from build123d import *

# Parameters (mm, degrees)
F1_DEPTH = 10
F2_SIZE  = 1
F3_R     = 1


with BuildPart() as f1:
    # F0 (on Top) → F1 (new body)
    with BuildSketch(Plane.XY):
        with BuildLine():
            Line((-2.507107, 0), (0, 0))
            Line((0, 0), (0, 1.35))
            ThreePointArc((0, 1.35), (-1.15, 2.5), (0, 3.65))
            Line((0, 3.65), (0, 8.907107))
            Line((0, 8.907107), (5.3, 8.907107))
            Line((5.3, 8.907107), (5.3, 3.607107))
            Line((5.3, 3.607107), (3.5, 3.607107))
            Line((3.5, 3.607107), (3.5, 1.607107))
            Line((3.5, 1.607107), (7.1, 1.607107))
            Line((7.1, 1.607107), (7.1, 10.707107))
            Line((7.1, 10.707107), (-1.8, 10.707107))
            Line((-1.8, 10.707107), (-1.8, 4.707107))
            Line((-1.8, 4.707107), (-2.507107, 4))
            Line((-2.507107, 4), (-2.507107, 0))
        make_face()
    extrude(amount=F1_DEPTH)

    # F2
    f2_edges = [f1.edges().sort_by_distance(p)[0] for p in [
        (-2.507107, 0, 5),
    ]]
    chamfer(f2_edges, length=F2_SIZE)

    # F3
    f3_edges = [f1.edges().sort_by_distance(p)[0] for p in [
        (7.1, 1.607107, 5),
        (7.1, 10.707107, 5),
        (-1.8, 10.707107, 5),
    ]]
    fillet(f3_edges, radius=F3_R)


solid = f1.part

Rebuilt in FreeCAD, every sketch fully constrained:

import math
import FreeCAD as App
import Part
import Sketcher

V = App.Vector
Q = App.Units.Quantity


def edges_at(feature, points):
    """Names of the edges that pass closest to the given points."""
    edges = feature.Shape.Edges
    near = lambda p: min(range(len(edges)), key=lambda i: edges[i].distToShape(Part.Vertex(*p))[0])
    return sorted({f"Edge{near(p) + 1}" for p in points})

doc = App.newDocument("Part")
body = doc.addObject("PartDesign::Body", "Body")

sketch1 = doc.addObject("Sketcher::SketchObject", "Sketch")
body.addObject(sketch1)
sketch1.AttachmentSupport = (doc.XY_Plane, [""])
sketch1.MapMode = "FlatFace"
sketch1.addGeometry([
    Part.LineSegment(V(-2.5, 0, 0), V(0, 0, 0)),
    Part.LineSegment(V(0, 0, 0), V(0, 1.4, 0)),
    Part.ArcOfCircle(Part.Circle(V(0, 2.5, 0), V(0, 0, 1), 1.1), math.radians(90), math.radians(270)),
    Part.LineSegment(V(0, 3.6, 0), V(0, 8.9, 0)),
    Part.LineSegment(V(0, 8.9, 0), V(5.3, 8.9, 0)),
    Part.LineSegment(V(5.3, 8.9, 0), V(5.3, 3.6, 0)),
    Part.LineSegment(V(5.3, 3.6, 0), V(3.5, 3.6, 0)),
    Part.LineSegment(V(3.5, 3.6, 0), V(3.5, 1.6, 0)),
    Part.LineSegment(V(3.5, 1.6, 0), V(7.1, 1.6, 0)),
    Part.LineSegment(V(7.1, 1.6, 0), V(7.1, 10.7, 0)),
    Part.LineSegment(V(7.1, 10.7, 0), V(-1.8, 10.7, 0)),
    Part.LineSegment(V(-1.8, 10.7, 0), V(-1.8, 4.7, 0)),
    Part.LineSegment(V(-1.8, 4.7, 0), V(-2.5, 4, 0)),
    Part.LineSegment(V(-2.5, 4, 0), V(-2.5, 0, 0)),
], False)
sketch1.addConstraint([
    Sketcher.Constraint("Coincident", 0, 2, 1, 1),
    Sketcher.Constraint("Coincident", 1, 2, 2, 2),
    Sketcher.Constraint("Coincident", 2, 1, 3, 1),
    Sketcher.Constraint("Coincident", 3, 2, 4, 1),
    Sketcher.Constraint("Coincident", 4, 2, 5, 1),
    Sketcher.Constraint("Coincident", 5, 2, 6, 1),
    Sketcher.Constraint("Coincident", 6, 2, 7, 1),
    Sketcher.Constraint("Coincident", 7, 2, 8, 1),
    Sketcher.Constraint("Coincident", 8, 2, 9, 1),
    Sketcher.Constraint("Coincident", 9, 2, 10, 1),
    Sketcher.Constraint("Coincident", 10, 2, 11, 1),
    Sketcher.Constraint("Coincident", 11, 2, 12, 1),
    Sketcher.Constraint("Coincident", 12, 2, 13, 1),
    Sketcher.Constraint("Coincident", 13, 2, 0, 1),
    Sketcher.Constraint("Horizontal", 0),
    Sketcher.Constraint("Vertical", 1),
    Sketcher.Constraint("Vertical", 3),
    Sketcher.Constraint("Horizontal", 4),
    Sketcher.Constraint("Vertical", 5),
    Sketcher.Constraint("Horizontal", 6),
    Sketcher.Constraint("Vertical", 7),
    Sketcher.Constraint("Horizontal", 8),
    Sketcher.Constraint("Vertical", 9),
    Sketcher.Constraint("Horizontal", 10),
    Sketcher.Constraint("Vertical", 11),
    Sketcher.Constraint("Vertical", 13),
    Sketcher.Constraint("Coincident", 0, 2, -1, 1),
    Sketcher.Constraint("PointOnObject", 2, 3, -2),
    Sketcher.Constraint("PointOnObject", 2, 1, -2),
    Sketcher.Constraint("Equal", 4, 5),
    Sketcher.Constraint("DistanceY", 7, 2, 7, 1, 2.0),
    Sketcher.Constraint("DistanceY", 11, 2, 11, 1, 6.0),
    Sketcher.Constraint("DistanceY", 13, 2, 13, 1, 4.0),
    Sketcher.Constraint("Angle", 12, Q("-135 deg")),
    Sketcher.Constraint("Radius", 2, 1.15),
    Sketcher.Constraint("Distance", 12, 1.0),
    Sketcher.Constraint("DistanceX", 4, 1, 4, 2, 5.3),
    Sketcher.Constraint("DistanceX", 6, 2, 6, 1, 1.8),
    Sketcher.Constraint("DistanceX", 8, 1, 8, 2, 3.6),
    Sketcher.Constraint("DistanceX", 10, 2, 10, 1, 8.9),
    Sketcher.Constraint("DistanceY", 9, 1, 9, 2, 9.1),
    Sketcher.Constraint("DistanceY", 1, 1, 1, 2, 1.35),
])
pad1 = doc.addObject("PartDesign::Pad", "Pad")
body.addObject(pad1)
pad1.Profile = sketch1
pad1.Length = 10
doc.recompute()

chamfer = doc.addObject("PartDesign::Chamfer", "Chamfer")
body.addObject(chamfer)
chamfer.Base = (pad1, edges_at(pad1, [(-2.507, 0, 5)]))
chamfer.Size = 1
doc.recompute()

fillet = doc.addObject("PartDesign::Fillet", "Fillet")
body.addObject(fillet)
fillet.Base = (chamfer, edges_at(chamfer, [(7.1, 1.607, 5), (7.1, 10.707, 5), (-1.8, 10.707, 5)]))
fillet.Radius = 1

doc.recompute()
